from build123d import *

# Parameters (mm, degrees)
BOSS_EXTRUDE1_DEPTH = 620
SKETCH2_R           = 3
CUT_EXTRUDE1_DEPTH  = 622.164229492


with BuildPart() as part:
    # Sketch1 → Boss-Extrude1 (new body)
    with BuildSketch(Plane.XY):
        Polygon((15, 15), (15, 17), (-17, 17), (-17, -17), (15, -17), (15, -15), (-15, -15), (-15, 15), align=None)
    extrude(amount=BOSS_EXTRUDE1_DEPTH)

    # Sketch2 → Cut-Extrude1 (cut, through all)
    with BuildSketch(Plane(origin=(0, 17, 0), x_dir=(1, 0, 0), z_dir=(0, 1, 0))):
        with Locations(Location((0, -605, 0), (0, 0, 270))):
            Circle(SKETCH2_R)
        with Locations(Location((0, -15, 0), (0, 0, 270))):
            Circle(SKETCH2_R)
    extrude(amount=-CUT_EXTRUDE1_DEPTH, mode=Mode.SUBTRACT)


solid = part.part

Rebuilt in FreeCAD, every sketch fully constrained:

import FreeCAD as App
import Part
import Sketcher
Q = App.Units.Quantity


def add_polygon(sketch, points):
    """Adds a closed chain of lines whose ends are joined by coincident constraints."""
    first, n = sketch.GeometryCount, len(points)
    for a, b in zip(points, points[1:] + points[:1]):
        sketch.addGeometry(Part.LineSegment(App.Vector(*a, 0), App.Vector(*b, 0)), False)
    for i in range(n):
        sketch.addConstraint(Sketcher.Constraint("Coincident", first + i, 2, first + (i + 1) % n, 1))

doc = App.newDocument("Part")
params = doc.addObject("Spreadsheet::Sheet", "Params")
for row, (alias, value) in enumerate([
    ("sketch1_width", "32 mm"),
    ("sketch1_width2", "30 mm"),
    ("sketch1_height", "2 mm"),
    ("pad1_length", "620 mm"),
    ("sketch2_diameter", "6 mm"),
], start=1):
    params.set(f"A{row}", alias)
    params.set(f"B{row}", "=" + value)
    params.setAlias(f"B{row}", alias)

body = doc.addObject("PartDesign::Body", "Body")

sketch1 = doc.addObject("Sketcher::SketchObject", "Sketch")
body.addObject(sketch1)
sketch1.AttachmentSupport = (doc.XY_Plane, [""])
sketch1.MapMode = "FlatFace"
add_polygon(sketch1, [(15, 15), (15, 17), (-17, 17), (-17, -17), (15, -17), (15, -15), (-15, -15), (-15, 15)])
sketch1.addConstraint([
    Sketcher.Constraint("Vertical", 0),
    Sketcher.Constraint("Horizontal", 1),
    Sketcher.Constraint("Vertical", 2),
    Sketcher.Constraint("Horizontal", 3),
    Sketcher.Constraint("Vertical", 4),
    Sketcher.Constraint("Horizontal", 5),
    Sketcher.Constraint("Vertical", 6),
    Sketcher.Constraint("Horizontal", 7),
    Sketcher.Constraint("Symmetric", 4, 2, 6, 2, -1, 1),
    Sketcher.Constraint("Symmetric", 0, 2, 3, 2, -1),
    Sketcher.Constraint("Equal", 7, 6),
    Sketcher.Constraint("DistanceX", 1, 2, 1, 1, Q("32 mm")),
    Sketcher.Constraint("DistanceX", 5, 2, 5, 1, Q("30 mm")),
    Sketcher.Constraint("DistanceY", 0, 1, 0, 2, Q("2 mm")),
])
sketch1.setExpression("Constraints[19]", "Params.sketch1_width")
sketch1.setExpression("Constraints[20]", "Params.sketch1_width2")
sketch1.setExpression("Constraints[21]", "Params.sketch1_height")
pad1 = doc.addObject("PartDesign::Pad", "Pad")
body.addObject(pad1)
pad1.Profile = sketch1
pad1.setExpression("Length", "Params.pad1_length")

sketch2 = doc.addObject("Sketcher::SketchObject", "Sketch001")
body.addObject(sketch2)
sketch2.AttachmentSupport = (doc.XZ_Plane, [""])
sketch2.MapMode = "FlatFace"
sketch2.AttachmentOffset = App.Placement(App.Vector(0, 0, -17), App.Rotation())
sketch2.addGeometry([
    Part.Circle(App.Vector(0, 605, 0), App.Vector(0, 0, 1), 3),
    Part.Circle(App.Vector(0, 15, 0), App.Vector(0, 0, 1), 3),
], False)
sketch2.addConstraint([
    Sketcher.Constraint("Equal", 0, 1),
    Sketcher.Constraint("PointOnObject", 0, 3, -2),
    Sketcher.Constraint("PointOnObject", 1, 3, -2),
    Sketcher.Constraint("Diameter", 0, Q("6 mm")),
    Sketcher.Constraint("DistanceY", -1, 1, 0, 3, Q("605 mm")),
    Sketcher.Constraint("DistanceY", -1, 1, 1, 3, Q("15 mm")),
])
sketch2.setExpression("Constraints[3]", "Params.sketch2_diameter")
pocket1 = doc.addObject("PartDesign::Pocket", "Pocket")
body.addObject(pocket1)
pocket1.Profile = sketch2
pocket1.Type = "ThroughAll"
pocket1.Reversed = True

doc.recompute()
